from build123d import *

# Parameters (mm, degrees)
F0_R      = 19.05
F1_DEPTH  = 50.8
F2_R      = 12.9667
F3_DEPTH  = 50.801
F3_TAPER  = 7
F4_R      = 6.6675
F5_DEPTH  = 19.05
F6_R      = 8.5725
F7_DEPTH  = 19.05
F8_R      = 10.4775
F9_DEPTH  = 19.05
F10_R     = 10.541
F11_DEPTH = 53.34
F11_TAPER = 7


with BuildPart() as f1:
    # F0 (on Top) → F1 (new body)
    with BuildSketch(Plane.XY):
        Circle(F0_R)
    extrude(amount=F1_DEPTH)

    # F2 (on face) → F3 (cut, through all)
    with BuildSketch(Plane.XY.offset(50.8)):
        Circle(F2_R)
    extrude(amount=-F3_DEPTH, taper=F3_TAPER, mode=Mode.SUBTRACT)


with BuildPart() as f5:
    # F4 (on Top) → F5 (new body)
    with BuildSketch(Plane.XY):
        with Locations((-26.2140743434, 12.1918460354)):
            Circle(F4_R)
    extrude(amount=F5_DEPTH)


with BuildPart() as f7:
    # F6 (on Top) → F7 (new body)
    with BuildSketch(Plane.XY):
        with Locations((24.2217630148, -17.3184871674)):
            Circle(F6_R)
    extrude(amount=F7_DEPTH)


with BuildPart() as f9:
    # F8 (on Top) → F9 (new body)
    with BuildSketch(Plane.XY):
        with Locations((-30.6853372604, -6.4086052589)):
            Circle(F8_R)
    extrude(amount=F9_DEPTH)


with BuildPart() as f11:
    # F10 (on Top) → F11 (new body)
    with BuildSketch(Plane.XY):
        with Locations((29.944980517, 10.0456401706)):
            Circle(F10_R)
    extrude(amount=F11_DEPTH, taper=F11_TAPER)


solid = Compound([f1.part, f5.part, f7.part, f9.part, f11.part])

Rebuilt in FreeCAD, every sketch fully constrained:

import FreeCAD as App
import Part
import Sketcher

V = App.Vector
Q = App.Units.Quantity

doc = App.newDocument("Part")
body = doc.addObject("PartDesign::Body", "Body")

# Sketch on XY plane
sketch1 = body.newObject("Sketcher::SketchObject", "Sketch")
sketch1.AttachmentSupport = (doc.getObject("XY_Plane"), [""])
sketch1.MapMode = "FlatFace"
sketch1.addGeometry(Part.Circle(V(0, 0, 0), V(0, 0, 1), 19), False)
sketch1.addConstraint(Sketcher.Constraint("Coincident", 0, 3, -1, 1))
sketch1.addConstraint(Sketcher.Constraint("Diameter", 0, Q("1.5 in")))
pad1 = body.newObject("PartDesign::Pad", "Pad")
pad1.Profile = sketch1
pad1.Length = Q("2 in")

# Sketch on XY plane
sketch2 = body.newObject("Sketcher::SketchObject", "Sketch001")
sketch2.AttachmentSupport = (doc.getObject("XY_Plane"), [""])
sketch2.MapMode = "FlatFace"
sketch2.AttachmentOffset = App.Placement(V(0, 0, 2 * 25.4), App.Rotation())
sketch2.addGeometry(Part.Circle(V(0, 0, 0), V(0, 0, 1), 13), False)
sketch2.addConstraint(Sketcher.Constraint("Coincident", 0, 3, -1, 1))
sketch2.addConstraint(Sketcher.Constraint("Diameter", 0, Q("1.021 in")))
pocket1 = body.newObject("PartDesign::Pocket", "Pocket")
pocket1.Profile = sketch2
pocket1.Length = 50.801
pocket1.TaperAngle = -7
body2 = doc.addObject("PartDesign::Body", "Body001")

# Sketch on XY plane
sketch3 = body2.newObject("Sketcher::SketchObject", "Sketch002")
sketch3.AttachmentSupport = (doc.getObject("XY_Plane001"), [""])
sketch3.MapMode = "FlatFace"
sketch3.addGeometry(Part.Circle(V(-26, 12, 0), V(0, 0, 1), 7), False)
sketch3.addConstraint(Sketcher.Constraint("Diameter", 0, Q("0.525 in")))
sketch3.addConstraint(Sketcher.Constraint("DistanceX", 0, 3, -1, 1, 26.214074))
sketch3.addConstraint(Sketcher.Constraint("DistanceY", -1, 1, 0, 3, 12.191846))
pad2 = body2.newObject("PartDesign::Pad", "Pad001")
pad2.Profile = sketch3
pad2.Length = Q("0.75 in")
body3 = doc.addObject("PartDesign::Body", "Body002")

# Sketch on XY plane
sketch4 = body3.newObject("Sketcher::SketchObject", "Sketch003")
sketch4.AttachmentSupport = (doc.getObject("XY_Plane002"), [""])
sketch4.MapMode = "FlatFace"
sketch4.addGeometry(Part.Circle(V(24, -17, 0), V(0, 0, 1), 9), False)
sketch4.addConstraint(Sketcher.Constraint("Diameter", 0, Q("0.675 in")))
sketch4.addConstraint(Sketcher.Constraint("DistanceX", -1, 1, 0, 3, 24.221763))
sketch4.addConstraint(Sketcher.Constraint("DistanceY", 0, 3, -1, 1, 17.318487))
pad3 = body3.newObject("PartDesign::Pad", "Pad002")
pad3.Profile = sketch4
pad3.Length = Q("0.75 in")
body4 = doc.addObject("PartDesign::Body", "Body003")

# Sketch on XY plane
sketch5 = body4.newObject("Sketcher::SketchObject", "Sketch004")
sketch5.AttachmentSupport = (doc.getObject("XY_Plane003"), [""])
sketch5.MapMode = "FlatFace"
sketch5.addGeometry(Part.Circle(V(-31, -6, 0), V(0, 0, 1), 10), False)
sketch5.addConstraint(Sketcher.Constraint("Diameter", 0, Q("0.825 in")))
sketch5.addConstraint(Sketcher.Constraint("DistanceX", 0, 3, -1, 1, 30.685337))
sketch5.addConstraint(Sketcher.Constraint("DistanceY", 0, 3, -1, 1, 6.408605))
pad4 = body4.newObject("PartDesign::Pad", "Pad003")
pad4.Profile = sketch5
pad4.Length = Q("0.75 in")
body5 = doc.addObject("PartDesign::Body", "Body004")

# Sketch on XY plane
sketch6 = body5.newObject("Sketcher::SketchObject", "Sketch005")
sketch6.AttachmentSupport = (doc.getObject("XY_Plane004"), [""])
sketch6.MapMode = "FlatFace"
sketch6.addGeometry(Part.Circle(V(30, 10, 0), V(0, 0, 1), 11), False)
sketch6.addConstraint(Sketcher.Constraint("Diameter", 0, Q("0.83 in")))
sketch6.addConstraint(Sketcher.Constraint("DistanceX", -1, 1, 0, 3, 29.944981))
sketch6.addConstraint(Sketcher.Constraint("DistanceY", -1, 1, 0, 3, 10.04564))
pad5 = body5.newObject("PartDesign::Pad", "Pad004")
pad5.Profile = sketch6
pad5.Length = Q("2.1 in")
pad5.TaperAngle = -7

doc.recompute()
